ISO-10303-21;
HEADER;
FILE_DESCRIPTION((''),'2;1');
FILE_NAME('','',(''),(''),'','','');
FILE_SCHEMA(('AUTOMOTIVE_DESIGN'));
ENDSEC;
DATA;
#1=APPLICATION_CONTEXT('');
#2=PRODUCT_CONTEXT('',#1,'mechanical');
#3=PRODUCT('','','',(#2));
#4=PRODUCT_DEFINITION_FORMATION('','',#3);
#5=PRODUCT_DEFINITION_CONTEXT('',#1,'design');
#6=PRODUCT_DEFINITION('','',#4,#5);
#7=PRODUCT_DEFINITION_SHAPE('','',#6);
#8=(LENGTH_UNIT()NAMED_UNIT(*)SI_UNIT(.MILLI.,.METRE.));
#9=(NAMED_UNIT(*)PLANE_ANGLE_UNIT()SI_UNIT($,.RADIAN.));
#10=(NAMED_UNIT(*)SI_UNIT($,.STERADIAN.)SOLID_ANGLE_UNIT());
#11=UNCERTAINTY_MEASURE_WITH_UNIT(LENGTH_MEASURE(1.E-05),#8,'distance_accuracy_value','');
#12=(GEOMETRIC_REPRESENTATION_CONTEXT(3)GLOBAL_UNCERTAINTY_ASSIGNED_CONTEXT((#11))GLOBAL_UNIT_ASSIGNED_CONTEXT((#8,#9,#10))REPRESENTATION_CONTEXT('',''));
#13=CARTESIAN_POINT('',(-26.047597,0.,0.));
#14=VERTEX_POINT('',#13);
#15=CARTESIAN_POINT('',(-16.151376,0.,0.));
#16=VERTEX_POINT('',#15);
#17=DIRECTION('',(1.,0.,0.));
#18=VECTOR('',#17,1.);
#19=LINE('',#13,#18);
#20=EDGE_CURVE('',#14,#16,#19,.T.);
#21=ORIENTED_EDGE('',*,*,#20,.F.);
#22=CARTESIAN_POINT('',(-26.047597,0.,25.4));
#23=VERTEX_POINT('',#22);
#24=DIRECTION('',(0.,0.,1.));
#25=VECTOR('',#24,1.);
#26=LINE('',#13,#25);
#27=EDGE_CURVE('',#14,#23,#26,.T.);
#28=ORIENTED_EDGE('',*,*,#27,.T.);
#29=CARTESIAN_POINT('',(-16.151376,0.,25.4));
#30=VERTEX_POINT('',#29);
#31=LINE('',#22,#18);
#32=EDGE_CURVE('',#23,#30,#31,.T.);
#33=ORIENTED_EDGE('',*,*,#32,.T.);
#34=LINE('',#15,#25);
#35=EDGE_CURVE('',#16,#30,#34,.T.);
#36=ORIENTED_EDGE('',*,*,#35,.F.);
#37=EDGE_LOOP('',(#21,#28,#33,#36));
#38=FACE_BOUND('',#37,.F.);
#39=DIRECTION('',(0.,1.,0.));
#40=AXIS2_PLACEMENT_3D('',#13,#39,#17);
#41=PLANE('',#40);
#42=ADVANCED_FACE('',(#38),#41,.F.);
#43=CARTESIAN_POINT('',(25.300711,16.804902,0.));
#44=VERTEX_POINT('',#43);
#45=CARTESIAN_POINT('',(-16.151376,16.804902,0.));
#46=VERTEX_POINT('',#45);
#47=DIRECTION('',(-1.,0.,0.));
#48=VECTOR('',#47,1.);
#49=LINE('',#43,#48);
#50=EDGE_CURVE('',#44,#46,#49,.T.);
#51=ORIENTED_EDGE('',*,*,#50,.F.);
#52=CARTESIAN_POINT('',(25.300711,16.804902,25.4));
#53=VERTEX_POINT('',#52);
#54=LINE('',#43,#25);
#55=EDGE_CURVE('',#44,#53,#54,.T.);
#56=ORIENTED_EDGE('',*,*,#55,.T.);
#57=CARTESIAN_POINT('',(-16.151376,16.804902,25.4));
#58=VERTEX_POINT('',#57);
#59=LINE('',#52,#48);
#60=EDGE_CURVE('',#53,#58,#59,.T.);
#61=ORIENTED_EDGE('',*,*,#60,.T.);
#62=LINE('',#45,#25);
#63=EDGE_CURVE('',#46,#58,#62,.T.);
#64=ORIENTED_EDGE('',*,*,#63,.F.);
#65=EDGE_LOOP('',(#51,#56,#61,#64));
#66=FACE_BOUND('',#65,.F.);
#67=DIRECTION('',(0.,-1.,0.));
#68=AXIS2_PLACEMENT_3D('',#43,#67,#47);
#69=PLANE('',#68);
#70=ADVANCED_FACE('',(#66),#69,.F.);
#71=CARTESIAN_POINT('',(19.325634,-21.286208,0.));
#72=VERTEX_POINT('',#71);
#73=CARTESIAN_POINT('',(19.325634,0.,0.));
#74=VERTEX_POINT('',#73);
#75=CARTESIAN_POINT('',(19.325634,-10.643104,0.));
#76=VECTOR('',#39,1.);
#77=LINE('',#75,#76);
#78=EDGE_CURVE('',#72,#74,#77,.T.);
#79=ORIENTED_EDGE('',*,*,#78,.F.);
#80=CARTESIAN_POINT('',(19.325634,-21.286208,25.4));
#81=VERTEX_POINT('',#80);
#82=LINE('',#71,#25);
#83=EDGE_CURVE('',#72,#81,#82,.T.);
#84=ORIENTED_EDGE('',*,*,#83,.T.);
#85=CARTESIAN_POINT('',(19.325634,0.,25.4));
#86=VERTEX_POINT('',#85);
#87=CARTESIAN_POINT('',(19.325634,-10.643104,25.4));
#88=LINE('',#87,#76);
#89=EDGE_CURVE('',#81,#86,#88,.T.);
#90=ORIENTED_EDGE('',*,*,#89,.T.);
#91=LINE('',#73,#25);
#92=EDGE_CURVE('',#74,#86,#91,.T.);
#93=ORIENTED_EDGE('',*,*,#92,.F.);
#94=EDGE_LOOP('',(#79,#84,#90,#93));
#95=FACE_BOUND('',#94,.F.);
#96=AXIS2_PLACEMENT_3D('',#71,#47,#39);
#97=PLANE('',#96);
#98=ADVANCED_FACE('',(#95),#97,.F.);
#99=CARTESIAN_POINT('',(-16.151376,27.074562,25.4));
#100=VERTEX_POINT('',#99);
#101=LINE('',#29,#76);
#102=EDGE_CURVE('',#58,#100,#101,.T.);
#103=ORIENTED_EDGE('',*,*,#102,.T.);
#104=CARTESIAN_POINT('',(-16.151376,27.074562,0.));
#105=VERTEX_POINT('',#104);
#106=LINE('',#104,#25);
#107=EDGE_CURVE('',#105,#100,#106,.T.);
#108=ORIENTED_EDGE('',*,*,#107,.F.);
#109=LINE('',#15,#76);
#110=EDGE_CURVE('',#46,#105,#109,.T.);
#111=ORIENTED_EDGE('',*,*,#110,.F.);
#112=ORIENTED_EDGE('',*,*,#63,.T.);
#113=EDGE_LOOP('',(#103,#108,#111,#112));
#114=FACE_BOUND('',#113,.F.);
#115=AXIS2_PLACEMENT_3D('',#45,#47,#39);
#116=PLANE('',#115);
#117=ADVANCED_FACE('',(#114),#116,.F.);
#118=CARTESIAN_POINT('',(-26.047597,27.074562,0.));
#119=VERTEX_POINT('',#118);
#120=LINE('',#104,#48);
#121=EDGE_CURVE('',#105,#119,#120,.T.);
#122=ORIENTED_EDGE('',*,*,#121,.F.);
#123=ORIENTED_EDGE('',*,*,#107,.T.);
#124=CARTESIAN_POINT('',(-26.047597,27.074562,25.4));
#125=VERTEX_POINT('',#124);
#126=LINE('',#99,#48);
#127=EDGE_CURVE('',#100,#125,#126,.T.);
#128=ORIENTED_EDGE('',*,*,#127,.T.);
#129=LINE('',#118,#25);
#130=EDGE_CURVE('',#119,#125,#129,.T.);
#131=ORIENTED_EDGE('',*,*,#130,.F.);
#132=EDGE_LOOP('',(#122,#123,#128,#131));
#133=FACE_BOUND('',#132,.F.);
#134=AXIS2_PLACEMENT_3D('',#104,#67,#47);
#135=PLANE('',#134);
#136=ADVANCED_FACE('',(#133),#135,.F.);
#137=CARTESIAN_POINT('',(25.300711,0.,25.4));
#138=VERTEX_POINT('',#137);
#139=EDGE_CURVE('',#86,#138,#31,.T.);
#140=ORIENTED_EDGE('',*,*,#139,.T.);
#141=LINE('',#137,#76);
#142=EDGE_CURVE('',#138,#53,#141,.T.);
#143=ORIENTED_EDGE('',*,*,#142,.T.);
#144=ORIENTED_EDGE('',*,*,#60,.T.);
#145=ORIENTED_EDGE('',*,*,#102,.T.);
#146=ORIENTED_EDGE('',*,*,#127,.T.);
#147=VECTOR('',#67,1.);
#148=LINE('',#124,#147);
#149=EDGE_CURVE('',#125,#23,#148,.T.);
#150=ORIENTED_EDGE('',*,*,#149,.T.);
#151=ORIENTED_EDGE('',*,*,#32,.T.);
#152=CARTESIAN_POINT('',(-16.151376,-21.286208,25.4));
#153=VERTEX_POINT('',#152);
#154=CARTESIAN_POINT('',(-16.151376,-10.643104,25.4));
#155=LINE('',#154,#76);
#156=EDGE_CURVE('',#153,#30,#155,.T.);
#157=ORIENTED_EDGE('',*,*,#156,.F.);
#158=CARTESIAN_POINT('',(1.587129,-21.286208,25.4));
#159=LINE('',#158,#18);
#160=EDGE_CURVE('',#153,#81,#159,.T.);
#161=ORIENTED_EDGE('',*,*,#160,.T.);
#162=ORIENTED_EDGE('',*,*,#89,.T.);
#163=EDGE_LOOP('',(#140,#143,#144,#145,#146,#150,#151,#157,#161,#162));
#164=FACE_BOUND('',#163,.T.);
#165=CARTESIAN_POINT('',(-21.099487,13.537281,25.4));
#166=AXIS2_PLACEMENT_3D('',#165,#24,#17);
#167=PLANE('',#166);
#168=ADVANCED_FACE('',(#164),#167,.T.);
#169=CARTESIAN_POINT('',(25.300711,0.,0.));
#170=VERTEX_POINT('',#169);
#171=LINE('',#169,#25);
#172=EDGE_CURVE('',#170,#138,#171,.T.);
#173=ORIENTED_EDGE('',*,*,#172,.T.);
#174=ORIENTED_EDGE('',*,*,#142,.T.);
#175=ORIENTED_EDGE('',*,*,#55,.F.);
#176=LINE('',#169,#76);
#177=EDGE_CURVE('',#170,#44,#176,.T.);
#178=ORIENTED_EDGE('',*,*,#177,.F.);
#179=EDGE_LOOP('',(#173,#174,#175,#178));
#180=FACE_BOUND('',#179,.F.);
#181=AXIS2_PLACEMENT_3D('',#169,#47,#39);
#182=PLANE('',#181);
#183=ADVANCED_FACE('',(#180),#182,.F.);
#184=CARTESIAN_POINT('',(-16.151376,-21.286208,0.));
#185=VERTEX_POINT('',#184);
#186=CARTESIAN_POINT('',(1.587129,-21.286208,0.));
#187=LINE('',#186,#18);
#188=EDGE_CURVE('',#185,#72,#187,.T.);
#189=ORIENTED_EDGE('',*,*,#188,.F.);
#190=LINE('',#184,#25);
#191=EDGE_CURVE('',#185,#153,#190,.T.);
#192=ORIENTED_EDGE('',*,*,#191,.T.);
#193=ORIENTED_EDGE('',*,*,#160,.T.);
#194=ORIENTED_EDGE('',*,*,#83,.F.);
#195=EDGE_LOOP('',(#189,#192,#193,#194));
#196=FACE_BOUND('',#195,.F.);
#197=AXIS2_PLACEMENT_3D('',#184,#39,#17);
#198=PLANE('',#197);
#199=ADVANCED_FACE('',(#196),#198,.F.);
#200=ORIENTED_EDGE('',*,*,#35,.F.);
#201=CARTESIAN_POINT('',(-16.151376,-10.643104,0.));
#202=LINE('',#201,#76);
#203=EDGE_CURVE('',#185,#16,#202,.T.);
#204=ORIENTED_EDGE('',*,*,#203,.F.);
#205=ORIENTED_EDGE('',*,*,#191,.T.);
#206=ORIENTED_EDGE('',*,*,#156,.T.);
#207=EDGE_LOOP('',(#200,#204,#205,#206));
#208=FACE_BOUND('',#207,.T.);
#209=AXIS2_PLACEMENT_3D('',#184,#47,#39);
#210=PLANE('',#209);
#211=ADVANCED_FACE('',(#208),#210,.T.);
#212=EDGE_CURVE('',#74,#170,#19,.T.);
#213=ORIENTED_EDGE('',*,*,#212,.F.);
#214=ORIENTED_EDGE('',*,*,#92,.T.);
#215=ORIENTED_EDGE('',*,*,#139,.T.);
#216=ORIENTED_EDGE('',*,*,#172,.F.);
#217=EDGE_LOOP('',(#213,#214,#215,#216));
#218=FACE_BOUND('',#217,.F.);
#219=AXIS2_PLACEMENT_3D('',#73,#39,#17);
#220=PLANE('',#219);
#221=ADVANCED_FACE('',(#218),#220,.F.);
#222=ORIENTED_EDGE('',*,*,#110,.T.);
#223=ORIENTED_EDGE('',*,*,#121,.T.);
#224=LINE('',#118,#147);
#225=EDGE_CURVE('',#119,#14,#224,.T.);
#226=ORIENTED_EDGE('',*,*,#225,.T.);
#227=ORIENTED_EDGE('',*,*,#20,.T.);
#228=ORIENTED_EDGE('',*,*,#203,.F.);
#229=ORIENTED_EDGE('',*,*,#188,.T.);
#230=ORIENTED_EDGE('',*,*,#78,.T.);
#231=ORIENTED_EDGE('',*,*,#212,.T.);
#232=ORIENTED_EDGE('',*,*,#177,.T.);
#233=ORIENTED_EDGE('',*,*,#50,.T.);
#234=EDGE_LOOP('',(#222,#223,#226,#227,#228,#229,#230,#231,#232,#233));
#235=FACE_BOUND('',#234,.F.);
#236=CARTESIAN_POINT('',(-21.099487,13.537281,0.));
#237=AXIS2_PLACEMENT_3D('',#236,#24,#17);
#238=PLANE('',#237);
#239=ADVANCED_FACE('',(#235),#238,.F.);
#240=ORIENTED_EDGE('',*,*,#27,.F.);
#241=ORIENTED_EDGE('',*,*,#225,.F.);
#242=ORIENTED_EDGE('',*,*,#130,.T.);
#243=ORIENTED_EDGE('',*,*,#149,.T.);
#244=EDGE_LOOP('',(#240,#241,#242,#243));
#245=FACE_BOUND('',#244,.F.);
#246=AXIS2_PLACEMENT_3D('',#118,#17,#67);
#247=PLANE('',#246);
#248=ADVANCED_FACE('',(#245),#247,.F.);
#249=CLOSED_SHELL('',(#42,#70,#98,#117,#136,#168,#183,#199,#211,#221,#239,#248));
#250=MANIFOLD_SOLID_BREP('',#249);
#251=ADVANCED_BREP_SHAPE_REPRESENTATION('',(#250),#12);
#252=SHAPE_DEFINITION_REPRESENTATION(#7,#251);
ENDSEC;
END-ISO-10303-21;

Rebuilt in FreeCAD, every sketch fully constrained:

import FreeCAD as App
import Part
import Sketcher

V = App.Vector
Q = App.Units.Quantity


def add_polygon(sketch, points):
    """Adds a closed chain of lines whose ends are joined by coincident constraints."""
    first, n = sketch.GeometryCount, len(points)
    for a, b in zip(points, points[1:] + points[:1]):
        sketch.addGeometry(Part.LineSegment(App.Vector(*a, 0), App.Vector(*b, 0)), False)
    for i in range(n):
        sketch.addConstraint(Sketcher.Constraint("Coincident", first + i, 2, first + (i + 1) % n, 1))

doc = App.newDocument("Part")
body = doc.addObject("PartDesign::Body", "Body")

# Sketch on XY plane
sketch1 = body.newObject("Sketcher::SketchObject", "Sketch")
sketch1.AttachmentSupport = (doc.getObject("XY_Plane"), [""])
sketch1.MapMode = "FlatFace"
add_polygon(sketch1, [(-16.151376, 27.074562), (-26.047597, 27.074562), (-26.047597, 0), (-16.151376, 0), (-16.151376, -21.286208), (19.325634, -21.286208), (19.325634, 0), (25.300711, 0), (25.300711, 16.804902), (-16.151376, 16.804902)])  # lines 0-9
sketch1.addConstraint([
    Sketcher.Constraint("Horizontal", 0),
    Sketcher.Constraint("Vertical", 1),
    Sketcher.Constraint("Horizontal", 2),
    Sketcher.Constraint("Vertical", 3),
    Sketcher.Constraint("Horizontal", 4),
    Sketcher.Constraint("Vertical", 5),
    Sketcher.Constraint("Horizontal", 6),
    Sketcher.Constraint("Vertical", 7),
    Sketcher.Constraint("Horizontal", 8),
    Sketcher.Constraint("Vertical", 9),
    Sketcher.Constraint("PointOnObject", 1, 2, -1),
    Sketcher.Constraint("PointOnObject", 5, 2, -1),
    Sketcher.Constraint("Vertical", 3, 2, 8, 2),
    Sketcher.Constraint("DistanceY", 7, 1, 7, 2, 16.804902),
    Sketcher.Constraint("DistanceX", 0, 2, 0, 1, 9.896221),
    Sketcher.Constraint("DistanceX", 4, 1, 4, 2, 35.47701),
    Sketcher.Constraint("DistanceY", 1, 2, 1, 1, 27.074562),
    Sketcher.Constraint("DistanceX", 6, 1, 6, 2, 5.975077),
    Sketcher.Constraint("DistanceY", 3, 2, 3, 1, 21.286208),
    Sketcher.Constraint("DistanceX", -1, 1, 6, 2, 25.300711),
])
pad1 = body.newObject("PartDesign::Pad", "Pad")
pad1.Profile = sketch1
pad1.Length = Q("1 in")

doc.recompute()
